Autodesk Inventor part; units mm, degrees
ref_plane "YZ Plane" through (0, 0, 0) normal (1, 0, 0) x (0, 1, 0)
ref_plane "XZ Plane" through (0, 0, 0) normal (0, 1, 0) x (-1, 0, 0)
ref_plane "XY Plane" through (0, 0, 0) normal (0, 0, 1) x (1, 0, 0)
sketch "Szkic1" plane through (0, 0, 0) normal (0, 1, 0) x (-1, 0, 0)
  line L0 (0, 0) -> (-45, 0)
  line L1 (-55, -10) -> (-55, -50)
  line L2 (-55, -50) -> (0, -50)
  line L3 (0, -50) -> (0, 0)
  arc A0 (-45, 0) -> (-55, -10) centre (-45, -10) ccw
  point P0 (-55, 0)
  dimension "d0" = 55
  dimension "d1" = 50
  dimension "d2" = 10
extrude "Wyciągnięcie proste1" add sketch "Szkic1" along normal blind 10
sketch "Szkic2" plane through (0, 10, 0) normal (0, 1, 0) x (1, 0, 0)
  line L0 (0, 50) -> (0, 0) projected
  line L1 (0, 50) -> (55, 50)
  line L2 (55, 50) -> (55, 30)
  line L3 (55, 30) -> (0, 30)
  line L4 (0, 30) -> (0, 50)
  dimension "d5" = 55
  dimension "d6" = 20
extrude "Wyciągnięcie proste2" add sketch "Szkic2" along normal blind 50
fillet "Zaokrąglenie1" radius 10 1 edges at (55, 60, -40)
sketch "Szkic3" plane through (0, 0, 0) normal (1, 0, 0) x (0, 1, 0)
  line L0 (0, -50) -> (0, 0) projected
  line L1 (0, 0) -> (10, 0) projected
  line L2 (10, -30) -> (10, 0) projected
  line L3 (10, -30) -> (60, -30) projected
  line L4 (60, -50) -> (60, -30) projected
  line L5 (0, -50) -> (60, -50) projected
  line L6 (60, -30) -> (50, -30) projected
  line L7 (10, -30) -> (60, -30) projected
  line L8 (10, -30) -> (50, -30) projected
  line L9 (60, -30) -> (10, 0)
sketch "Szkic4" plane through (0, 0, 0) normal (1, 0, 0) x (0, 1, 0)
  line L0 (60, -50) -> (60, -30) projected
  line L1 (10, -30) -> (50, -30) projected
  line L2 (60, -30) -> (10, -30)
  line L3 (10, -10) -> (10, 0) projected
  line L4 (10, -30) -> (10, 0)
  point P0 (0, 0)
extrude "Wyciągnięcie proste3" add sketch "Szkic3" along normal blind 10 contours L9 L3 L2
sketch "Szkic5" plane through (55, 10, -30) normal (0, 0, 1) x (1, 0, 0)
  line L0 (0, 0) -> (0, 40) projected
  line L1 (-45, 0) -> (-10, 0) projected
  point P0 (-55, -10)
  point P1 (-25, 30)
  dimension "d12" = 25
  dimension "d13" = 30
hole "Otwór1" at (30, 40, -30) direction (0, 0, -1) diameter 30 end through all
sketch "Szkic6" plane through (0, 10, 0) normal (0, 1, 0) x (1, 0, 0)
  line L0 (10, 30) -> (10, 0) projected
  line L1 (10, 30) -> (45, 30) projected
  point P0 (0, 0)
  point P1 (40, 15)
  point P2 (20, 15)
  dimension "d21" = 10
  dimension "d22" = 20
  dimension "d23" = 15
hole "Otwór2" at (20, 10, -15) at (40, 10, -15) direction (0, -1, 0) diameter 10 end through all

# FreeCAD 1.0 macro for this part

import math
import FreeCAD as App
import Part
import Sketcher
Q = App.Units.Quantity


def edges_at(feature, points):
    """Names of the edges that pass closest to the given points."""
    edges = feature.Shape.Edges
    near = lambda p: min(range(len(edges)), key=lambda i: edges[i].distToShape(Part.Vertex(*p))[0])
    return sorted({f"Edge{near(p) + 1}" for p in points})


def add_polygon(sketch, points):
    """Adds a closed chain of lines whose ends are joined by coincident constraints."""
    first, n = sketch.GeometryCount, len(points)
    for a, b in zip(points, points[1:] + points[:1]):
        sketch.addGeometry(Part.LineSegment(App.Vector(*a, 0), App.Vector(*b, 0)), False)
    for i in range(n):
        sketch.addConstraint(Sketcher.Constraint("Coincident", first + i, 2, first + (i + 1) % n, 1))

doc = App.newDocument("Part")
body = doc.addObject("PartDesign::Body", "Body")

sketch1 = body.newObject("Sketcher::SketchObject", "Sketch")
sketch1.AttachmentSupport = (doc.getObject("XZ_Plane"), [""])
sketch1.MapMode = "FlatFace"
sketch1.addGeometry([
    Part.LineSegment(App.Vector(0, -50, 0), App.Vector(0, 0, 0)),
    Part.LineSegment(App.Vector(0, 0, 0), App.Vector(45, 0, 0)),
    Part.ArcOfCircle(Part.Circle(App.Vector(45, -10, 0), App.Vector(0, 0, 1), 10), math.radians(0), math.radians(90)),
    Part.LineSegment(App.Vector(55, -10, 0), App.Vector(55, -50, 0)),
    Part.LineSegment(App.Vector(55, -50, 0), App.Vector(0, -50, 0)),
], False)
sketch1.addConstraint([
    Sketcher.Constraint("Coincident", 0, 2, 1, 1),
    Sketcher.Constraint("Tangent", 1, 2, 2, 2),
    Sketcher.Constraint("Tangent", 2, 1, 3, 1),
    Sketcher.Constraint("Coincident", 3, 2, 4, 1),
    Sketcher.Constraint("Coincident", 4, 2, 0, 1),
    Sketcher.Constraint("Vertical", 0),
    Sketcher.Constraint("Horizontal", 1),
    Sketcher.Constraint("Vertical", 3),
    Sketcher.Constraint("Horizontal", 4),
    Sketcher.Constraint("Coincident", 0, 2, -1, 1),
    Sketcher.Constraint("Radius", 2, Q("10 mm")),
    Sketcher.Constraint("DistanceX", 4, 2, 4, 1, Q("55 mm")),
    Sketcher.Constraint("DistanceY", 0, 1, 0, 2, Q("50 mm")),
])
pad1 = body.newObject("PartDesign::Pad", "Pad")
pad1.Profile = sketch1
pad1.Length = 10
pad1.Reversed = True

sketch2 = body.newObject("Sketcher::SketchObject", "Sketch001")
sketch2.AttachmentSupport = (doc.getObject("XZ_Plane"), [""])
sketch2.MapMode = "FlatFace"
sketch2.AttachmentOffset = App.Placement(App.Vector(0, 0, -10), App.Rotation())
add_polygon(sketch2, [(55, -50), (0, -50), (0, -30), (55, -30)])
sketch2.addConstraint([
    Sketcher.Constraint("Horizontal", 0),
    Sketcher.Constraint("Vertical", 1),
    Sketcher.Constraint("Horizontal", 2),
    Sketcher.Constraint("Vertical", 3),
    Sketcher.Constraint("PointOnObject", 0, 2, -2),
    Sketcher.Constraint("DistanceX", 0, 2, 0, 1, Q("55 mm")),
    Sketcher.Constraint("DistanceY", 1, 1, 1, 2, Q("20 mm")),
    Sketcher.Constraint("DistanceY", 0, 2, -1, 1, Q("50 mm")),
])
pad2 = body.newObject("PartDesign::Pad", "Pad001")
pad2.Profile = sketch2
pad2.Length = 50
pad2.Reversed = True
doc.recompute()

fillet = body.newObject("PartDesign::Fillet", "Fillet")
fillet.Base = (pad2, edges_at(pad2, [(55, 60, -40)]))
fillet.Radius = 10

sketch3 = body.newObject("Sketcher::SketchObject", "Sketch002")
sketch3.AttachmentSupport = (doc.getObject("YZ_Plane"), [""])
sketch3.MapMode = "FlatFace"
add_polygon(sketch3, [(60, -30), (10, 0), (10, -30)])
sketch3.addConstraint([
    Sketcher.Constraint("Vertical", 1),
    Sketcher.Constraint("Horizontal", 2),
    Sketcher.Constraint("PointOnObject", 0, 2, -1),
    Sketcher.Constraint("DistanceX", 2, 1, 2, 2, Q("50 mm")),
    Sketcher.Constraint("DistanceY", 1, 2, 1, 1, Q("30 mm")),
    Sketcher.Constraint("DistanceX", -1, 1, 0, 2, Q("10 mm")),
])
pad3 = body.newObject("PartDesign::Pad", "Pad002")
pad3.Profile = sketch3
pad3.Length = 10

sketch4 = body.newObject("Sketcher::SketchObject", "Sketch003")
sketch4.AttachmentSupport = (doc.getObject("XY_Plane"), [""])
sketch4.MapMode = "FlatFace"
sketch4.AttachmentOffset = App.Placement(App.Vector(0, 0, -30), App.Rotation())
sketch4.addGeometry(Part.Circle(App.Vector(30, 40, 0), App.Vector(0, 0, 1), 15), False)
sketch4.addConstraint([
    Sketcher.Constraint("Diameter", 0, Q("30 mm")),
    Sketcher.Constraint("DistanceX", -1, 1, 0, 3, Q("30 mm")),
    Sketcher.Constraint("DistanceY", -1, 1, 0, 3, Q("40 mm")),
])
doc.recompute()
hole = body.newObject("PartDesign::Hole", "Hole")
hole.Profile = sketch4
hole.ThreadType = "None"
hole.Diameter = 30
hole.DepthType = "ThroughAll"

sketch5 = body.newObject("Sketcher::SketchObject", "Sketch004")
sketch5.AttachmentSupport = (doc.getObject("XZ_Plane"), [""])
sketch5.MapMode = "FlatFace"
sketch5.AttachmentOffset = App.Placement(App.Vector(0, 0, -10), App.Rotation())
sketch5.addGeometry([
    Part.Circle(App.Vector(20, -15, 0), App.Vector(0, 0, 1), 5),
    Part.Circle(App.Vector(40, -15, 0), App.Vector(0, 0, 1), 5),
], False)
sketch5.addConstraint([
    Sketcher.Constraint("Equal", 0, 1),
    Sketcher.Constraint("Horizontal", 0, 3, 1, 3),
    Sketcher.Constraint("Diameter", 0, Q("10 mm")),
    Sketcher.Constraint("DistanceX", -1, 1, 0, 3, Q("20 mm")),
    Sketcher.Constraint("DistanceY", 0, 3, -1, 1, Q("15 mm")),
    Sketcher.Constraint("DistanceX", -1, 1, 1, 3, Q("40 mm")),
])
doc.recompute()
hole2 = body.newObject("PartDesign::Hole", "Hole001")
hole2.Profile = sketch5
hole2.ThreadType = "None"
hole2.Diameter = 10
hole2.DepthType = "ThroughAll"
hole2.Reversed = True

doc.recompute()
